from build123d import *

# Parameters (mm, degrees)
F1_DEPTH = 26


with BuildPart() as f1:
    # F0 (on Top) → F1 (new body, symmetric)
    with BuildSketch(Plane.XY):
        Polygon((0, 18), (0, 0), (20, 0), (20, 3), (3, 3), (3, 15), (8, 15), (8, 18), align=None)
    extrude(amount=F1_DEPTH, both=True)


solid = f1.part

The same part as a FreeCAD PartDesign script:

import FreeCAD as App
import Part
import Sketcher

V = App.Vector


def add_polygon(sketch, points):
    """Adds a closed chain of lines whose ends are joined by coincident constraints."""
    first, n = sketch.GeometryCount, len(points)
    for a, b in zip(points, points[1:] + points[:1]):
        sketch.addGeometry(Part.LineSegment(App.Vector(*a, 0), App.Vector(*b, 0)), False)
    for i in range(n):
        sketch.addConstraint(Sketcher.Constraint("Coincident", first + i, 2, first + (i + 1) % n, 1))

doc = App.newDocument("Part")
body = doc.addObject("PartDesign::Body", "Body")

# Sketch on XY plane
sketch1 = body.newObject("Sketcher::SketchObject", "Sketch")
sketch1.AttachmentSupport = (doc.getObject("XY_Plane"), [""])
sketch1.MapMode = "FlatFace"
add_polygon(sketch1, [(0, 18), (0, 0), (20, 0), (20, 3), (3, 3), (3, 15), (8, 15), (8, 18)])  # lines 0-7
sketch1.addConstraint([
    Sketcher.Constraint("Vertical", 0),
    Sketcher.Constraint("Horizontal", 1),
    Sketcher.Constraint("Vertical", 2),
    Sketcher.Constraint("Horizontal", 3),
    Sketcher.Constraint("Vertical", 4),
    Sketcher.Constraint("Horizontal", 5),
    Sketcher.Constraint("Vertical", 6),
    Sketcher.Constraint("Horizontal", 7),
    Sketcher.Constraint("Coincident", 0, 2, -1, 1),
    Sketcher.Constraint("Equal", 2, 6),
    Sketcher.Constraint("DistanceX", 1, 1, 1, 2, 20.0),
    Sketcher.Constraint("DistanceX", 3, 2, 3, 1, 17.0),
    Sketcher.Constraint("DistanceX", 5, 1, 5, 2, 5.0),
    Sketcher.Constraint("DistanceY", 0, 2, 0, 1, 18.0),
    Sketcher.Constraint("DistanceY", 2, 1, 2, 2, 3.0),
])
pad1 = body.newObject("PartDesign::Pad", "Pad")
pad1.Profile = sketch1
pad1.Length = 52
pad1.Midplane = True

doc.recompute()
